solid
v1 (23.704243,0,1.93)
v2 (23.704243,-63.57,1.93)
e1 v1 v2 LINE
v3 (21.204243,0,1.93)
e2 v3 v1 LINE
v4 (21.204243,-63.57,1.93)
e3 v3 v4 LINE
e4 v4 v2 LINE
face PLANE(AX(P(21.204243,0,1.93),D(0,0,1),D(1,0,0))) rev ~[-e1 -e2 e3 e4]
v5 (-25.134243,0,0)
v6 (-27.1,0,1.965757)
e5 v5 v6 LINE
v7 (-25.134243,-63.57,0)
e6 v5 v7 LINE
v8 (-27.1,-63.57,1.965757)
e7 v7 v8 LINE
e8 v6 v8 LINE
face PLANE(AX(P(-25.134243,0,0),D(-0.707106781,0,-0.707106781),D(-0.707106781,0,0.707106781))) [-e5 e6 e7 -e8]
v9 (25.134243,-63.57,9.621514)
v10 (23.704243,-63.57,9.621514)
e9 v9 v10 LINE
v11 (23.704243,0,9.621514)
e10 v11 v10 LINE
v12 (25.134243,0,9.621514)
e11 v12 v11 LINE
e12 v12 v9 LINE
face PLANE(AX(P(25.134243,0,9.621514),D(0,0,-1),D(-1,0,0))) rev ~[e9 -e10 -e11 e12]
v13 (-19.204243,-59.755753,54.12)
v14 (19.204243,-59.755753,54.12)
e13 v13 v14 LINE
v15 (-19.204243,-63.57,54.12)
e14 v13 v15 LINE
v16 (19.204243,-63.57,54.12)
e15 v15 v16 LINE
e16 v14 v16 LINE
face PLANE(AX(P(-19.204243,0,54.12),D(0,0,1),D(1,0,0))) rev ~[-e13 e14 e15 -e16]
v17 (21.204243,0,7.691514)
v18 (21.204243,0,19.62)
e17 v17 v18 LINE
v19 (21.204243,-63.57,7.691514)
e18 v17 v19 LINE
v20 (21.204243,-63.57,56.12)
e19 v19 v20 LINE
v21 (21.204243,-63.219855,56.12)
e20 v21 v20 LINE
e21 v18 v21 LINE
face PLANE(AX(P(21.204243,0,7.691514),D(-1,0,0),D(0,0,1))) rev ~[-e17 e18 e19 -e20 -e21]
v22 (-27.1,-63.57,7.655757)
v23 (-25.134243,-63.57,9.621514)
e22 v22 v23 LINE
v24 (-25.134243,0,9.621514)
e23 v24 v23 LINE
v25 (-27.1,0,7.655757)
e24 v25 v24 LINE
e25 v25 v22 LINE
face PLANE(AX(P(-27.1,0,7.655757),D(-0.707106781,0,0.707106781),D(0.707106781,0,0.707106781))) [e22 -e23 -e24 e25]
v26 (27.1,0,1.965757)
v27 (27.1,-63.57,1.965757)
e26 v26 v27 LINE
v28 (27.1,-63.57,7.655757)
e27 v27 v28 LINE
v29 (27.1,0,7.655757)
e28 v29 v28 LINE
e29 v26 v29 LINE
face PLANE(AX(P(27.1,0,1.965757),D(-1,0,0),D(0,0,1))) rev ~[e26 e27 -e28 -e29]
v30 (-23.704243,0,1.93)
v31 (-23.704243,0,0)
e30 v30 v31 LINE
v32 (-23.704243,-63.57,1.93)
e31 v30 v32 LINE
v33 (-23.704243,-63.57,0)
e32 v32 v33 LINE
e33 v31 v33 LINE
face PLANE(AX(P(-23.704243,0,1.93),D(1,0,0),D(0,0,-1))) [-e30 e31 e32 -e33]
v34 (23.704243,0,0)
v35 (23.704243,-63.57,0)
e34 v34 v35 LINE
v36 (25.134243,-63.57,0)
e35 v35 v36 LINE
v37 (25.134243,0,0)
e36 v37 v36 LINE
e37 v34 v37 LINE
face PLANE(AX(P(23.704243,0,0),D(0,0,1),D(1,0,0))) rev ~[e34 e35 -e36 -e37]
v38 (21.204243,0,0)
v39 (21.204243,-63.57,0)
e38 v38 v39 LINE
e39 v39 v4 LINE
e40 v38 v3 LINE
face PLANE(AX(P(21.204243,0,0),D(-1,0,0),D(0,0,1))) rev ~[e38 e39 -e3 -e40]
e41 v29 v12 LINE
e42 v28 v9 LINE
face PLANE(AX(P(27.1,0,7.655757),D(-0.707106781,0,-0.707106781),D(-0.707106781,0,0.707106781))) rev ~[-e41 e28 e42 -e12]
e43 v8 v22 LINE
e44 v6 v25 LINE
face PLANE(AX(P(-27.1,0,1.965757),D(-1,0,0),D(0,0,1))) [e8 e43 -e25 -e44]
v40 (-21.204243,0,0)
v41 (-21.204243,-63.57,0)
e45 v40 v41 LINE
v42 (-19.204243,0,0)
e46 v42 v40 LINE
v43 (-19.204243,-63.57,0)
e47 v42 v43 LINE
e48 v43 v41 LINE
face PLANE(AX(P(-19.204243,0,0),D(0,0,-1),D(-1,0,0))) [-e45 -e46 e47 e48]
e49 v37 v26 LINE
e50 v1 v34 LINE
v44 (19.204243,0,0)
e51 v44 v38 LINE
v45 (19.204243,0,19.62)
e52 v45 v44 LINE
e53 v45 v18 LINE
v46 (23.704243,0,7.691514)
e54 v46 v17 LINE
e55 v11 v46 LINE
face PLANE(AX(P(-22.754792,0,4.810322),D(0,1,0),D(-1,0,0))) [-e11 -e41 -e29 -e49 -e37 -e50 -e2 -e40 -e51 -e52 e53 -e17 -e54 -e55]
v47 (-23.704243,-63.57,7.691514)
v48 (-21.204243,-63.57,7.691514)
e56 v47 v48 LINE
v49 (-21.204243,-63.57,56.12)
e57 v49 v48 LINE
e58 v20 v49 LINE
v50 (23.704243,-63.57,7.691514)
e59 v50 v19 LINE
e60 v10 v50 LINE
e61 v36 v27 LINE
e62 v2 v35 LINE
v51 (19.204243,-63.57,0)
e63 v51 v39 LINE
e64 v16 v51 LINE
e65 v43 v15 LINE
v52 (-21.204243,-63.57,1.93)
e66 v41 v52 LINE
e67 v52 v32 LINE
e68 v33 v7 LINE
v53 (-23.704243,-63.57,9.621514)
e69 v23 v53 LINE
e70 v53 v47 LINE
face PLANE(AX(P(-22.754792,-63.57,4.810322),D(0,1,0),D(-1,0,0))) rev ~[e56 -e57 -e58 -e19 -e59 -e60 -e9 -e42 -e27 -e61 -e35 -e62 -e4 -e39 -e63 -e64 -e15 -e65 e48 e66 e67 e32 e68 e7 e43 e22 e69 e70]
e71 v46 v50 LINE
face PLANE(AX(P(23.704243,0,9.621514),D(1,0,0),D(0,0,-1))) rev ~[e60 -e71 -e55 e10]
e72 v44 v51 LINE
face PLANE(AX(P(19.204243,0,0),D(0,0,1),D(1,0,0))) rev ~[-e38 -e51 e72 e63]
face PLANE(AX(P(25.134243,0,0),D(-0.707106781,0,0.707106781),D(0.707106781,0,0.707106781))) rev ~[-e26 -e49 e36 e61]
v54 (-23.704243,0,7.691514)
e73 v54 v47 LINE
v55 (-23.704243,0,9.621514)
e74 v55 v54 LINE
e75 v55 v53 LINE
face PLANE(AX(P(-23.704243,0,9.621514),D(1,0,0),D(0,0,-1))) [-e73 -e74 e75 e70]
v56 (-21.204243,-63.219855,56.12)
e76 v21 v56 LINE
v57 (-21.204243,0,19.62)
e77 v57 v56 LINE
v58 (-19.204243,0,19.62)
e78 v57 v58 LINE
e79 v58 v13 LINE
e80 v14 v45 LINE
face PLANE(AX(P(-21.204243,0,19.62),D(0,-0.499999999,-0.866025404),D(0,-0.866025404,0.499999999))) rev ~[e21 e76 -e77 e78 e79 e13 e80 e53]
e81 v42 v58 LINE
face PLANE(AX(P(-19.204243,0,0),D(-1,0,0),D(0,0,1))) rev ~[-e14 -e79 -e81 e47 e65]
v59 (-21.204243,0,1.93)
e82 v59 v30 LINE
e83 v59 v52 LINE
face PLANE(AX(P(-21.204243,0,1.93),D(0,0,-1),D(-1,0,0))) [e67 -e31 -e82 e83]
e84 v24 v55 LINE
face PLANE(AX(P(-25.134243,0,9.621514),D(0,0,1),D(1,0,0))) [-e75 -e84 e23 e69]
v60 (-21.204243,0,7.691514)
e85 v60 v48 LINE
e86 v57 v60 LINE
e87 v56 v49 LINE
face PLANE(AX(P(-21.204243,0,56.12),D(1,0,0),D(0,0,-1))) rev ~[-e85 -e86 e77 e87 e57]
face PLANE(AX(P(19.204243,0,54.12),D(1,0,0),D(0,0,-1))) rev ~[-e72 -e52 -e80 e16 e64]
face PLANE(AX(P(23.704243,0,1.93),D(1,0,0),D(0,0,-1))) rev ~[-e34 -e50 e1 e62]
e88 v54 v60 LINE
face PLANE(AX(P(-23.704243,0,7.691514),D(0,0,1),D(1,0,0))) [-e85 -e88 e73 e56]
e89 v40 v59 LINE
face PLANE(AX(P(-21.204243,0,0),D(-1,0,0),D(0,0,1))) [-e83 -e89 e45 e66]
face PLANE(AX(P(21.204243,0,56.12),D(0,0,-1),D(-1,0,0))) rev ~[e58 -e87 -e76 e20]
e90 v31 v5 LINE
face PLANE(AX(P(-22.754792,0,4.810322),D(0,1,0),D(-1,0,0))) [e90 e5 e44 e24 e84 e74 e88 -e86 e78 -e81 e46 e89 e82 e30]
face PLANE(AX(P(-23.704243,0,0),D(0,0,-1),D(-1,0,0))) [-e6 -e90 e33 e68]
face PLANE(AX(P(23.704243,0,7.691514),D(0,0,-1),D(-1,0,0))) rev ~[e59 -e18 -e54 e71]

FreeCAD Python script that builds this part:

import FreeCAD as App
import Part
import Sketcher

V = App.Vector
Q = App.Units.Quantity


def add_polygon(sketch, points):
    """Adds a closed chain of lines whose ends are joined by coincident constraints."""
    first, n = sketch.GeometryCount, len(points)
    for a, b in zip(points, points[1:] + points[:1]):
        sketch.addGeometry(Part.LineSegment(App.Vector(*a, 0), App.Vector(*b, 0)), False)
    for i in range(n):
        sketch.addConstraint(Sketcher.Constraint("Coincident", first + i, 2, first + (i + 1) % n, 1))

doc = App.newDocument("Part")
body = doc.addObject("PartDesign::Body", "Body")

sketch1 = body.newObject("Sketcher::SketchObject", "Sketch")
sketch1.AttachmentSupport = (doc.getObject("XZ_Plane"), [""])
sketch1.MapMode = "FlatFace"
add_polygon(sketch1, [(-21.204243, 1.93), (-21.204243, 0), (-19.204243, 0), (-19.204243, 54.12), (19.204243, 54.12), (19.204243, 0), (21.204243, 0), (21.204243, 1.93), (23.704243, 1.93), (23.704243, 0), (25.134243, 0), (27.1, 1.965757), (27.1, 7.655757), (25.134243, 9.621514), (23.704243, 9.621514), (23.704243, 7.691514), (21.204243, 7.691514), (21.204243, 56.12), (-21.204243, 56.12), (-21.204243, 7.691514), (-23.704243, 7.691514), (-23.704243, 9.621514), (-25.134243, 9.621514), (-27.1, 7.655757), (-27.1, 1.965757), (-25.134243, 0), (-23.704243, 0), (-23.704243, 1.93)])
sketch1.addConstraint(Sketcher.Constraint("Vertical", 0))
sketch1.addConstraint(Sketcher.Constraint("Horizontal", 1))
sketch1.addConstraint(Sketcher.Constraint("Vertical", 2))
sketch1.addConstraint(Sketcher.Constraint("Horizontal", 3))
sketch1.addConstraint(Sketcher.Constraint("Vertical", 4))
sketch1.addConstraint(Sketcher.Constraint("Horizontal", 5))
sketch1.addConstraint(Sketcher.Constraint("Vertical", 6))
sketch1.addConstraint(Sketcher.Constraint("Horizontal", 7))
sketch1.addConstraint(Sketcher.Constraint("Vertical", 8))
sketch1.addConstraint(Sketcher.Constraint("Horizontal", 9))
sketch1.addConstraint(Sketcher.Constraint("Vertical", 11))
sketch1.addConstraint(Sketcher.Constraint("Horizontal", 13))
sketch1.addConstraint(Sketcher.Constraint("Vertical", 14))
sketch1.addConstraint(Sketcher.Constraint("Horizontal", 15))
sketch1.addConstraint(Sketcher.Constraint("Vertical", 16))
sketch1.addConstraint(Sketcher.Constraint("Horizontal", 17))
sketch1.addConstraint(Sketcher.Constraint("Vertical", 18))
sketch1.addConstraint(Sketcher.Constraint("Horizontal", 19))
sketch1.addConstraint(Sketcher.Constraint("Vertical", 20))
sketch1.addConstraint(Sketcher.Constraint("Horizontal", 21))
sketch1.addConstraint(Sketcher.Constraint("Vertical", 23))
sketch1.addConstraint(Sketcher.Constraint("Horizontal", 25))
sketch1.addConstraint(Sketcher.Constraint("Vertical", 26))
sketch1.addConstraint(Sketcher.Constraint("Horizontal", 27))
sketch1.addConstraint(Sketcher.Constraint("Symmetric", 1, 2, 4, 2, -1, 1))
sketch1.addConstraint(Sketcher.Constraint("Symmetric", 9, 2, 24, 2, -1, 1))
sketch1.addConstraint(Sketcher.Constraint("Symmetric", 0, 2, 5, 2, -2))
sketch1.addConstraint(Sketcher.Constraint("Symmetric", 15, 2, 18, 2, -2))
sketch1.addConstraint(Sketcher.Constraint("Symmetric", 13, 2, 20, 2, -2))
sketch1.addConstraint(Sketcher.Constraint("Symmetric", 11, 2, 22, 2, -2))
sketch1.addConstraint(Sketcher.Constraint("Symmetric", 8, 2, 25, 2, -2))
sketch1.addConstraint(Sketcher.Constraint("Perpendicular", 10, 12))
sketch1.addConstraint(Sketcher.Constraint("Perpendicular", 12, 22))
sketch1.addConstraint(Sketcher.Constraint("Perpendicular", 22, 24))
sketch1.addConstraint(Sketcher.Constraint("Horizontal", 10, 2, 23, 2))
sketch1.addConstraint(Sketcher.Constraint("Horizontal", 7, 2, 26, 2))
sketch1.addConstraint(Sketcher.Constraint("Vertical", 9, 2, 12, 2))
sketch1.addConstraint(Sketcher.Constraint("Vertical", 8, 2, 13, 2))
sketch1.addConstraint(Sketcher.Constraint("Vertical", 6, 2, 15, 2))
sketch1.addConstraint(Sketcher.Constraint("Equal", 8, 14))
sketch1.addConstraint(Sketcher.Constraint("DistanceX", 1, 1, 1, 2, Q("2 mm")))
sketch1.addConstraint(Sketcher.Constraint("DistanceX", 7, 1, 7, 2, Q("2.5 mm")))
sketch1.addConstraint(Sketcher.Constraint("DistanceY", 3, 2, 16, 2, Q("2 mm")))
sketch1.addConstraint(Sketcher.Constraint("DistanceX", 9, 1, 9, 2, Q("1.43 mm")))
sketch1.addConstraint(Sketcher.Constraint("DistanceY", 0, 2, 0, 1, Q("1.93 mm")))
sketch1.addConstraint(Sketcher.Constraint("DistanceY", 2, 1, 2, 2, Q("54.12 mm")))
sketch1.addConstraint(Sketcher.Constraint("DistanceY", 11, 1, 11, 2, Q("5.69 mm")))
sketch1.addConstraint(Sketcher.Constraint("DistanceX", -1, 1, 10, 2, Q("27.1 mm")))
sketch1.addConstraint(Sketcher.Constraint("Distance", 10, Q("2.78 mm")))
pad1 = body.newObject("PartDesign::Pad", "Pad")
pad1.Profile = sketch1
pad1.Length = 63.57

sketch2 = body.newObject("Sketcher::SketchObject", "Sketch001")
sketch2.AttachmentSupport = (doc.getObject("YZ_Plane"), [""])
sketch2.MapMode = "FlatFace"
sketch2.AttachmentOffset = App.Placement(V(0, 0, -21.204243), App.Rotation())
add_polygon(sketch2, [(0, 19.62), (-64.08588, 56.62), (0, 56.62)])
sketch2.addConstraint(Sketcher.Constraint("Horizontal", 1))
sketch2.addConstraint(Sketcher.Constraint("Vertical", 2))
sketch2.addConstraint(Sketcher.Constraint("PointOnObject", 1, 2, -2))
sketch2.addConstraint(Sketcher.Constraint("DistanceY", 2, 2, 2, 1, Q("37 mm")))
sketch2.addConstraint(Sketcher.Constraint("Angle", 0, Q("150 deg")))
sketch2.addConstraint(Sketcher.Constraint("DistanceY", -1, 1, 0, 2, Q("56.62 mm")))
pocket1 = body.newObject("PartDesign::Pocket", "Pocket")
pocket1.Profile = sketch2
pocket1.Type = "ThroughAll"
pocket1.Reversed = True

doc.recompute()
